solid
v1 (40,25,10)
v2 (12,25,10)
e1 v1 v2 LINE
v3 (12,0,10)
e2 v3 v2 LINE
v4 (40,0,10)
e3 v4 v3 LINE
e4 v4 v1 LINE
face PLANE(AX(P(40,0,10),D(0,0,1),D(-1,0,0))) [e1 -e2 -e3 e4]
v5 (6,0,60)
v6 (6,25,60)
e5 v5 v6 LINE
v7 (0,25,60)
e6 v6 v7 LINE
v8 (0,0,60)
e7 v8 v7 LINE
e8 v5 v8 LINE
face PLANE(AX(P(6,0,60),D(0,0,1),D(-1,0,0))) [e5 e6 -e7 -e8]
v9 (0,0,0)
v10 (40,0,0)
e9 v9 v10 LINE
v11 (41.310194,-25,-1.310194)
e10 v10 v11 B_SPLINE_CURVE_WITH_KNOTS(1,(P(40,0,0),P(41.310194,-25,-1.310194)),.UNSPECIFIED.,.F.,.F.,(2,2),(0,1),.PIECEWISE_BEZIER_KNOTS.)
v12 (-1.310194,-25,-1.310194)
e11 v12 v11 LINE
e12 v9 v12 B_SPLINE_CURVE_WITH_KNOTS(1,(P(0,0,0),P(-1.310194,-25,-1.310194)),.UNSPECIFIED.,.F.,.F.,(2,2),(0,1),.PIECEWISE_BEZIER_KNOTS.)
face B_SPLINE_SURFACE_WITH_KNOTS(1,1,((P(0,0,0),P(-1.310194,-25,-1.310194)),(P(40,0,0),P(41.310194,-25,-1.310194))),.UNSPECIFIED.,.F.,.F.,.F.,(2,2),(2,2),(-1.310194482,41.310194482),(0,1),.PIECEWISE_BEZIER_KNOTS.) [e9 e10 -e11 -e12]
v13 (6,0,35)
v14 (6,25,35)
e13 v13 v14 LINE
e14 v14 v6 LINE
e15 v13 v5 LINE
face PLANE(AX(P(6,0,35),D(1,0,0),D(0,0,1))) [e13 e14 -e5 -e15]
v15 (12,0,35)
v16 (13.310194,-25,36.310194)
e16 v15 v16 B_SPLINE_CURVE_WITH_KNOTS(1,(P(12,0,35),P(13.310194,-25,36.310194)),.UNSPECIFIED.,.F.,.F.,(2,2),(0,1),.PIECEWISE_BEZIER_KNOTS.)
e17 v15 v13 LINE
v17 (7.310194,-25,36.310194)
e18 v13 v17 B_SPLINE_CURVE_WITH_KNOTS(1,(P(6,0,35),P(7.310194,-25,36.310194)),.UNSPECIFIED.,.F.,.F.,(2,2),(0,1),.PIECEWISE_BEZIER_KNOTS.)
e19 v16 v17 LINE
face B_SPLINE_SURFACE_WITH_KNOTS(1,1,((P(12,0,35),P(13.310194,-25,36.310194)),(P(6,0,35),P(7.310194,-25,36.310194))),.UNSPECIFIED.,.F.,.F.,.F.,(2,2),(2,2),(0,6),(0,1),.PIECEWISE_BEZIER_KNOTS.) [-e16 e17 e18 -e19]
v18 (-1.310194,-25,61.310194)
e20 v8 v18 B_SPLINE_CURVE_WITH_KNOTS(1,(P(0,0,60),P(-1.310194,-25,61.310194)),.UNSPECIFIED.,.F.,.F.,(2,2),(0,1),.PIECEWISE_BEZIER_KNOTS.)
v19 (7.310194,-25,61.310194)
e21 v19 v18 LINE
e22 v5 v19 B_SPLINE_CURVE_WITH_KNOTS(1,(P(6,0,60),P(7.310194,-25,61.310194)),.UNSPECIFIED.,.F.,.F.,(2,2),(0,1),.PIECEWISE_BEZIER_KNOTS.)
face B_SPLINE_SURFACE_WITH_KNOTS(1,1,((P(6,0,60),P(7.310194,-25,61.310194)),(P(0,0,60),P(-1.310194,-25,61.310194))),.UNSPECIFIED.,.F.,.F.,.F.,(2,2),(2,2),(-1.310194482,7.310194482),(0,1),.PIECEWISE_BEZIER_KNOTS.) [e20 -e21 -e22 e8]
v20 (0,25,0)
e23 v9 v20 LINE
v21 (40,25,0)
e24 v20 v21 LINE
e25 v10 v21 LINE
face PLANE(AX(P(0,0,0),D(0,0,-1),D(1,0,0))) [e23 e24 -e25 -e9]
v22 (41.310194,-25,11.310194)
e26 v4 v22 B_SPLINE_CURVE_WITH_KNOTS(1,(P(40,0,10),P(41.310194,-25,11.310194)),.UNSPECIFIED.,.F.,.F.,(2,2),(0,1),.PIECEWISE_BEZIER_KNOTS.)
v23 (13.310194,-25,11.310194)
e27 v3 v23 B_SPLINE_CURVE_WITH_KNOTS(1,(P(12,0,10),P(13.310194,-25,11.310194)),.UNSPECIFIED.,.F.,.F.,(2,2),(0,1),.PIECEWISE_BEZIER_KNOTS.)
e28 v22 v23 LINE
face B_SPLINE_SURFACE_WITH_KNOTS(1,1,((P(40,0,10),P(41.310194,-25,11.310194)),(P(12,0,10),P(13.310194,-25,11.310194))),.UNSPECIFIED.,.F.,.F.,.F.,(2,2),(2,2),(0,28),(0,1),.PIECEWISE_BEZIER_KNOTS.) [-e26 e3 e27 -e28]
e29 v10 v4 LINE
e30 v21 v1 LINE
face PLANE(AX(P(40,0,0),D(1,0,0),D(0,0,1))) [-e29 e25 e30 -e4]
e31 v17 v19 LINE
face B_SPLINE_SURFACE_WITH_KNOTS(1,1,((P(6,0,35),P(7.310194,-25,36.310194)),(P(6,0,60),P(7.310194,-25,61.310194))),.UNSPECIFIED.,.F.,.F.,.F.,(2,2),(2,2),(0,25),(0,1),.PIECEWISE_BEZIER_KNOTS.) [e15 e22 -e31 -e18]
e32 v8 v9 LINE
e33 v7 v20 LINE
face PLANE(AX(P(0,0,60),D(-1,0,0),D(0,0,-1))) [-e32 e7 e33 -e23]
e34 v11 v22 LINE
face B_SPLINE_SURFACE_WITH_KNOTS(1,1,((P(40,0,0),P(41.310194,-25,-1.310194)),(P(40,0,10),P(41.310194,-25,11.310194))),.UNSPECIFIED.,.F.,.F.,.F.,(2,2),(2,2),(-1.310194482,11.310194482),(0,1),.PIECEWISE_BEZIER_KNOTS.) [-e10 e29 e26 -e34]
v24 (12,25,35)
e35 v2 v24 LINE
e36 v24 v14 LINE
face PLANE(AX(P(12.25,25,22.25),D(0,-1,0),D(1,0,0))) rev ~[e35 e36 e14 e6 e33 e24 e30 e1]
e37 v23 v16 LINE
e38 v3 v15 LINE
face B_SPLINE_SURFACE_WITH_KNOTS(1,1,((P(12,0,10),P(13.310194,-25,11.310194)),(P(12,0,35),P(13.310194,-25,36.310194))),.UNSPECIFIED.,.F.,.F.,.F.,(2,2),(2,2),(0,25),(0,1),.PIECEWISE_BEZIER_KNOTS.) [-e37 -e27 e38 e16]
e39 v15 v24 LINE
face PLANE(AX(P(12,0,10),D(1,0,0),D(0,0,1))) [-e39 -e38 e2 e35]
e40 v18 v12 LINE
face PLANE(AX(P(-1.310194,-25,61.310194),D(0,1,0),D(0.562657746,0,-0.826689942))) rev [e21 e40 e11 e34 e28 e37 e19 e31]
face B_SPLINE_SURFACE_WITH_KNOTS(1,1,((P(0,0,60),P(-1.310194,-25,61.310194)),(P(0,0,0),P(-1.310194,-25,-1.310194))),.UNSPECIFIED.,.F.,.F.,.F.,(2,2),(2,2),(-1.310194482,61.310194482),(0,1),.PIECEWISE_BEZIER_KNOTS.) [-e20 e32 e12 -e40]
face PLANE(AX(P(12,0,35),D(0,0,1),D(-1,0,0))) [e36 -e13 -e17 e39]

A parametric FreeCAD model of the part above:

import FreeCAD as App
import Part
import Sketcher
from FreeCAD import Vector
Q = App.Units.Quantity


def add_polygon(sketch, points):
    """Adds a closed chain of lines whose ends are joined by coincident constraints."""
    first, n = sketch.GeometryCount, len(points)
    for a, b in zip(points, points[1:] + points[:1]):
        sketch.addGeometry(Part.LineSegment(App.Vector(*a, 0), App.Vector(*b, 0)), False)
    for i in range(n):
        sketch.addConstraint(Sketcher.Constraint("Coincident", first + i, 2, first + (i + 1) % n, 1))

doc = App.newDocument("Part")
body = doc.addObject("PartDesign::Body", "Body")

# Sketch on XZ plane
sketch1 = body.newObject("Sketcher::SketchObject", "Sketch")
sketch1.AttachmentSupport = (doc.getObject("XZ_Plane"), [""])
sketch1.MapMode = "FlatFace"
add_polygon(sketch1, [(0, 60), (0, 0), (40, 0), (40, 10), (12, 10), (12, 35), (6, 35), (6, 60)])  # lines 0-7
sketch1.addConstraint(Sketcher.Constraint("Vertical", 0))
sketch1.addConstraint(Sketcher.Constraint("Horizontal", 1))
sketch1.addConstraint(Sketcher.Constraint("Vertical", 2))
sketch1.addConstraint(Sketcher.Constraint("Horizontal", 3))
sketch1.addConstraint(Sketcher.Constraint("Vertical", 4))
sketch1.addConstraint(Sketcher.Constraint("Horizontal", 5))
sketch1.addConstraint(Sketcher.Constraint("Vertical", 6))
sketch1.addConstraint(Sketcher.Constraint("Horizontal", 7))
sketch1.addConstraint(Sketcher.Constraint("Coincident", 0, 2, -1, 1))
sketch1.addConstraint(Sketcher.Constraint("Equal", 5, 7))
sketch1.addConstraint(Sketcher.Constraint("Equal", 4, 6))
sketch1.addConstraint(Sketcher.Constraint("DistanceX", 1, 1, 1, 2, Q("40 mm")))
sketch1.addConstraint(Sketcher.Constraint("DistanceX", 3, 2, 3, 1, Q("28 mm")))
sketch1.addConstraint(Sketcher.Constraint("DistanceY", 0, 2, 0, 1, Q("60 mm")))
sketch1.addConstraint(Sketcher.Constraint("DistanceY", 2, 1, 2, 2, Q("10 mm")))
pad1 = body.newObject("PartDesign::Pad", "Pad")
pad1.Profile = sketch1
pad1.Length = 25
pad1.TaperAngle = 3
pad2 = body.newObject("PartDesign::Pad", "Pad001")
pad2.Profile = sketch1
pad2.Length = 25
pad2.Reversed = True

doc.recompute()
